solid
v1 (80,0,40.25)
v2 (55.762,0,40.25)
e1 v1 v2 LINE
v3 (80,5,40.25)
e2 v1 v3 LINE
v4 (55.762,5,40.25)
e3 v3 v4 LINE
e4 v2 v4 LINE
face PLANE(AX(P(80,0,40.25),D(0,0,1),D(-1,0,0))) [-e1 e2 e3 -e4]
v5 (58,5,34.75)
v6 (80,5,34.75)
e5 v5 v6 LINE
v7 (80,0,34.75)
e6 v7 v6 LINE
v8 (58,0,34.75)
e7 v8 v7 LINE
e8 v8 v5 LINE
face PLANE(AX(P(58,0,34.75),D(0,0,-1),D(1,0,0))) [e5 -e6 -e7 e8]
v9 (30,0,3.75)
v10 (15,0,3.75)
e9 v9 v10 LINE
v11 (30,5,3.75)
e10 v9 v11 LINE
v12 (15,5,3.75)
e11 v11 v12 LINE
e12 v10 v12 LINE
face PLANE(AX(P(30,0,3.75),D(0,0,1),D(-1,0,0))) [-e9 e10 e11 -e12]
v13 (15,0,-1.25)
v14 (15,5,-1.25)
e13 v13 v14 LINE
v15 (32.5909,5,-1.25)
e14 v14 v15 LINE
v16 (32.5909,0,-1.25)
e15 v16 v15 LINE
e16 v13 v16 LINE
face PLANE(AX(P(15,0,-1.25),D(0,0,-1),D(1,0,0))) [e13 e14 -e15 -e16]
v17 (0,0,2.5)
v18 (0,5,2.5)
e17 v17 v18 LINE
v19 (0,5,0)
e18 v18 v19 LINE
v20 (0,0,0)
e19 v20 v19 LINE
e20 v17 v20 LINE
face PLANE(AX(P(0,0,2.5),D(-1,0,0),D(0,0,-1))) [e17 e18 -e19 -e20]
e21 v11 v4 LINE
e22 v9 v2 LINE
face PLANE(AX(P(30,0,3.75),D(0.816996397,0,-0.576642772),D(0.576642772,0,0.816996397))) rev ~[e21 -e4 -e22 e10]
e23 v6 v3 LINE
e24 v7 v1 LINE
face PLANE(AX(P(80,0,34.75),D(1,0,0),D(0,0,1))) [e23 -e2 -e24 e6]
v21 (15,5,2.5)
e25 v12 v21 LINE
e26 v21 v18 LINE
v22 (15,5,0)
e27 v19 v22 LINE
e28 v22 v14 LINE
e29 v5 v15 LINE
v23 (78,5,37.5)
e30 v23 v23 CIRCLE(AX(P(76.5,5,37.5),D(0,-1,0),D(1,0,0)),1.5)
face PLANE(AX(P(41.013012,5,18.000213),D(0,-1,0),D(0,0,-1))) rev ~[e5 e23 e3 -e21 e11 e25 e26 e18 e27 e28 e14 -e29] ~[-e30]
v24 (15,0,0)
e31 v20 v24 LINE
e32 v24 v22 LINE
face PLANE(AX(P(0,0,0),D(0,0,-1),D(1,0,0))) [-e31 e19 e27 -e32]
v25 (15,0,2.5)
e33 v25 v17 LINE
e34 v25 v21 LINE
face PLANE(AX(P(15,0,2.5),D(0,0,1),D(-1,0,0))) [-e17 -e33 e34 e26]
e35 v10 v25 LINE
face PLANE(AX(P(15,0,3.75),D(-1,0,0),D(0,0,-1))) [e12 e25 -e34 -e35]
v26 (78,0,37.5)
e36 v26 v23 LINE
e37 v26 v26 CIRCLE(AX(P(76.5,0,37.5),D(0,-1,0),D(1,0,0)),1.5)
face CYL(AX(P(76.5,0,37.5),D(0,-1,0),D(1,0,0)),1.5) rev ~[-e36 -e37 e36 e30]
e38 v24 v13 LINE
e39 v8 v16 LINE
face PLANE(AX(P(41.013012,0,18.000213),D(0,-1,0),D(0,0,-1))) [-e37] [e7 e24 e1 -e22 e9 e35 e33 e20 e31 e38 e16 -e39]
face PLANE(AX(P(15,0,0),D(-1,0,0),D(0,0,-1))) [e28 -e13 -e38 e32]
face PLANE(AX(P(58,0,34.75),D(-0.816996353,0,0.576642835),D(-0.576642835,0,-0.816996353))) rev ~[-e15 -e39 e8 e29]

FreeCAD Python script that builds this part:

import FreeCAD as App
import Part
import Sketcher

V = App.Vector

doc = App.newDocument("Part")
body = doc.addObject("PartDesign::Body", "Body")

# Sketch on XZ plane
sketch1 = body.newObject("Sketcher::SketchObject", "Sketch")
sketch1.AttachmentSupport = (doc.getObject("XZ_Plane"), [""])
sketch1.MapMode = "FlatFace"
sketch1.addGeometry([
    Part.LineSegment(V(15, 3.75, 0), V(15, 2.5, 0)),  # 0
    Part.LineSegment(V(15, 2.5, 0), V(0, 2.5, 0)),  # 1
    Part.LineSegment(V(0, 2.5, 0), V(0, 0, 0)),  # 2
    Part.LineSegment(V(0, 0, 0), V(15, 0, 0)),  # 3
    Part.LineSegment(V(15, 0, 0), V(15, -1.25, 0)),  # 4
    Part.LineSegment(V(15, -1.25, 0), V(32.5909, -1.25, 0)),  # 5
    Part.LineSegment(V(32.5909, -1.25, 0), V(58, 34.75, 0)),  # 6
    Part.LineSegment(V(58, 34.75, 0), V(80, 34.75, 0)),  # 7
    Part.LineSegment(V(80, 34.75, 0), V(80, 40.25, 0)),  # 8
    Part.LineSegment(V(80, 40.25, 0), V(55.762, 40.25, 0)),  # 9
    Part.LineSegment(V(55.762, 40.25, 0), V(30, 3.75, 0)),  # 10
    Part.LineSegment(V(30, 3.75, 0), V(15, 3.75, 0)),  # 11
    Part.Circle(V(76.5, 37.5, 0), V(0, 0, 1), 1.5),  # 12
], False)
sketch1.addConstraint([
    Sketcher.Constraint("Coincident", 0, 2, 1, 1),
    Sketcher.Constraint("Coincident", 1, 2, 2, 1),
    Sketcher.Constraint("Coincident", 2, 2, 3, 1),
    Sketcher.Constraint("Coincident", 3, 2, 4, 1),
    Sketcher.Constraint("Coincident", 4, 2, 5, 1),
    Sketcher.Constraint("Coincident", 5, 2, 6, 1),
    Sketcher.Constraint("Coincident", 6, 2, 7, 1),
    Sketcher.Constraint("Coincident", 7, 2, 8, 1),
    Sketcher.Constraint("Coincident", 8, 2, 9, 1),
    Sketcher.Constraint("Coincident", 9, 2, 10, 1),
    Sketcher.Constraint("Coincident", 10, 2, 11, 1),
    Sketcher.Constraint("Coincident", 11, 2, 0, 1),
    Sketcher.Constraint("Vertical", 0),
    Sketcher.Constraint("Horizontal", 1),
    Sketcher.Constraint("Vertical", 2),
    Sketcher.Constraint("Horizontal", 3),
    Sketcher.Constraint("Vertical", 4),
    Sketcher.Constraint("Horizontal", 5),
    Sketcher.Constraint("Horizontal", 7),
    Sketcher.Constraint("Vertical", 8),
    Sketcher.Constraint("Horizontal", 9),
    Sketcher.Constraint("Horizontal", 11),
    Sketcher.Constraint("Coincident", 2, 2, -1, 1),
    Sketcher.Constraint("Parallel", 6, 10),
    Sketcher.Constraint("Vertical", 0, 2, 3, 2),
    Sketcher.Constraint("Equal", 3, 11),
    Sketcher.Constraint("Equal", 0, 4),
    Sketcher.Constraint("Diameter", 12, 3.0),
    Sketcher.Constraint("DistanceX", 1, 2, 1, 1, 15.0),
    Sketcher.Constraint("DistanceX", 7, 1, 7, 2, 22.0),
    Sketcher.Constraint("DistanceY", 2, 2, 2, 1, 2.5),
    Sketcher.Constraint("DistanceY", 8, 1, 8, 2, 5.5),
    Sketcher.Constraint("DistanceX", -1, 1, 6, 2, 58.0),
    Sketcher.Constraint("DistanceY", 0, 2, 12, 3, 35.0),
    Sketcher.Constraint("DistanceY", 5, 2, 6, 2, 36.0),
    Sketcher.Constraint("DistanceY", 5, 2, 10, 2, 5.0),
    Sketcher.Constraint("DistanceX", -1, 1, 12, 3, 76.5),
    Sketcher.Constraint("DistanceX", 5, 1, 5, 2, 17.591),
])
pad1 = body.newObject("PartDesign::Pad", "Pad")
pad1.Profile = sketch1
pad1.Length = 5
pad1.Reversed = True

doc.recompute()
